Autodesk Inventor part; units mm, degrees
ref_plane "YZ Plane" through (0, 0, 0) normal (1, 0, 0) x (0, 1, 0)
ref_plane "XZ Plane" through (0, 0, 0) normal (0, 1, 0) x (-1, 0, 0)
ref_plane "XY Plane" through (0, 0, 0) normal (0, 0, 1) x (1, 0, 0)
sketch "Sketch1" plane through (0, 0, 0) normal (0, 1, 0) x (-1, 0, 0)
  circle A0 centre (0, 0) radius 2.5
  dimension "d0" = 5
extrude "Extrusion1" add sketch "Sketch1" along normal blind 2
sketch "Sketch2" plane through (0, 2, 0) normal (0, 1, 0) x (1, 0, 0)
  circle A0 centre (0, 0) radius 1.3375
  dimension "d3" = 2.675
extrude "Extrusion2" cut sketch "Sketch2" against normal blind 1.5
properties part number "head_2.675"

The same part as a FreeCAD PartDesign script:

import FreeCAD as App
import Part
import Sketcher

doc = App.newDocument("Part")
body = doc.addObject("PartDesign::Body", "Body")

sketch1 = doc.addObject("Sketcher::SketchObject", "Sketch")
body.addObject(sketch1)
sketch1.AttachmentSupport = (doc.XZ_Plane, [""])
sketch1.MapMode = "FlatFace"
sketch1.addGeometry(Part.Circle(App.Vector(0, 0, 0), App.Vector(0, 0, 1), 2.5), False)
sketch1.addConstraint([
    Sketcher.Constraint("Coincident", 0, 3, -1, 1),
    Sketcher.Constraint("Diameter", 0, 5.0),
])
pad1 = doc.addObject("PartDesign::Pad", "Pad")
body.addObject(pad1)
pad1.Profile = sketch1
pad1.Length = 2
pad1.Reversed = True

sketch2 = doc.addObject("Sketcher::SketchObject", "Sketch001")
body.addObject(sketch2)
sketch2.AttachmentSupport = (doc.XZ_Plane, [""])
sketch2.MapMode = "FlatFace"
sketch2.AttachmentOffset = App.Placement(App.Vector(0, 0, -2), App.Rotation())
sketch2.addGeometry(Part.Circle(App.Vector(0, 0, 0), App.Vector(0, 0, 1), 1.3375), False)
sketch2.addConstraint([
    Sketcher.Constraint("Coincident", 0, 3, -1, 1),
    Sketcher.Constraint("Diameter", 0, 2.675),
])
pocket1 = doc.addObject("PartDesign::Pocket", "Pocket")
body.addObject(pocket1)
pocket1.Profile = sketch2
pocket1.Length = 1.5
pocket1.Reversed = True

doc.recompute()
